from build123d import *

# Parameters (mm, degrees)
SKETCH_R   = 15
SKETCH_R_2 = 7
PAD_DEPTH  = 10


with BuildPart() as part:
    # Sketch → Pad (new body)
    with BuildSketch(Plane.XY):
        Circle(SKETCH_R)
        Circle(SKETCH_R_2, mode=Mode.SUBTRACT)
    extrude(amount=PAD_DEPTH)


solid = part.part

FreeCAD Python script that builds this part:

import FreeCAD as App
import Part
import Sketcher
from FreeCAD import Vector

doc = App.newDocument("Part")
body = doc.addObject("PartDesign::Body", "Body")

sketch1 = body.newObject("Sketcher::SketchObject", "Sketch")
sketch1.AttachmentSupport = (doc.getObject("XY_Plane"), [""])
sketch1.MapMode = "FlatFace"
sketch1.addGeometry(Part.Circle(Vector(0, 0, 0), Vector(0, 0, 1), 15), False)
sketch1.addGeometry(Part.Circle(Vector(0, 0, 0), Vector(0, 0, 1), 7), False)
sketch1.addConstraint(Sketcher.Constraint("Coincident", 0, 3, -1, 1))
sketch1.addConstraint(Sketcher.Constraint("Coincident", 1, 3, -1, 1))
sketch1.addConstraint(Sketcher.Constraint("Diameter", 0, 30.0))
sketch1.addConstraint(Sketcher.Constraint("Diameter", 1, 14.0))
pad1 = body.newObject("PartDesign::Pad", "Pad")
pad1.Profile = sketch1
pad1.Length = 10

doc.recompute()
